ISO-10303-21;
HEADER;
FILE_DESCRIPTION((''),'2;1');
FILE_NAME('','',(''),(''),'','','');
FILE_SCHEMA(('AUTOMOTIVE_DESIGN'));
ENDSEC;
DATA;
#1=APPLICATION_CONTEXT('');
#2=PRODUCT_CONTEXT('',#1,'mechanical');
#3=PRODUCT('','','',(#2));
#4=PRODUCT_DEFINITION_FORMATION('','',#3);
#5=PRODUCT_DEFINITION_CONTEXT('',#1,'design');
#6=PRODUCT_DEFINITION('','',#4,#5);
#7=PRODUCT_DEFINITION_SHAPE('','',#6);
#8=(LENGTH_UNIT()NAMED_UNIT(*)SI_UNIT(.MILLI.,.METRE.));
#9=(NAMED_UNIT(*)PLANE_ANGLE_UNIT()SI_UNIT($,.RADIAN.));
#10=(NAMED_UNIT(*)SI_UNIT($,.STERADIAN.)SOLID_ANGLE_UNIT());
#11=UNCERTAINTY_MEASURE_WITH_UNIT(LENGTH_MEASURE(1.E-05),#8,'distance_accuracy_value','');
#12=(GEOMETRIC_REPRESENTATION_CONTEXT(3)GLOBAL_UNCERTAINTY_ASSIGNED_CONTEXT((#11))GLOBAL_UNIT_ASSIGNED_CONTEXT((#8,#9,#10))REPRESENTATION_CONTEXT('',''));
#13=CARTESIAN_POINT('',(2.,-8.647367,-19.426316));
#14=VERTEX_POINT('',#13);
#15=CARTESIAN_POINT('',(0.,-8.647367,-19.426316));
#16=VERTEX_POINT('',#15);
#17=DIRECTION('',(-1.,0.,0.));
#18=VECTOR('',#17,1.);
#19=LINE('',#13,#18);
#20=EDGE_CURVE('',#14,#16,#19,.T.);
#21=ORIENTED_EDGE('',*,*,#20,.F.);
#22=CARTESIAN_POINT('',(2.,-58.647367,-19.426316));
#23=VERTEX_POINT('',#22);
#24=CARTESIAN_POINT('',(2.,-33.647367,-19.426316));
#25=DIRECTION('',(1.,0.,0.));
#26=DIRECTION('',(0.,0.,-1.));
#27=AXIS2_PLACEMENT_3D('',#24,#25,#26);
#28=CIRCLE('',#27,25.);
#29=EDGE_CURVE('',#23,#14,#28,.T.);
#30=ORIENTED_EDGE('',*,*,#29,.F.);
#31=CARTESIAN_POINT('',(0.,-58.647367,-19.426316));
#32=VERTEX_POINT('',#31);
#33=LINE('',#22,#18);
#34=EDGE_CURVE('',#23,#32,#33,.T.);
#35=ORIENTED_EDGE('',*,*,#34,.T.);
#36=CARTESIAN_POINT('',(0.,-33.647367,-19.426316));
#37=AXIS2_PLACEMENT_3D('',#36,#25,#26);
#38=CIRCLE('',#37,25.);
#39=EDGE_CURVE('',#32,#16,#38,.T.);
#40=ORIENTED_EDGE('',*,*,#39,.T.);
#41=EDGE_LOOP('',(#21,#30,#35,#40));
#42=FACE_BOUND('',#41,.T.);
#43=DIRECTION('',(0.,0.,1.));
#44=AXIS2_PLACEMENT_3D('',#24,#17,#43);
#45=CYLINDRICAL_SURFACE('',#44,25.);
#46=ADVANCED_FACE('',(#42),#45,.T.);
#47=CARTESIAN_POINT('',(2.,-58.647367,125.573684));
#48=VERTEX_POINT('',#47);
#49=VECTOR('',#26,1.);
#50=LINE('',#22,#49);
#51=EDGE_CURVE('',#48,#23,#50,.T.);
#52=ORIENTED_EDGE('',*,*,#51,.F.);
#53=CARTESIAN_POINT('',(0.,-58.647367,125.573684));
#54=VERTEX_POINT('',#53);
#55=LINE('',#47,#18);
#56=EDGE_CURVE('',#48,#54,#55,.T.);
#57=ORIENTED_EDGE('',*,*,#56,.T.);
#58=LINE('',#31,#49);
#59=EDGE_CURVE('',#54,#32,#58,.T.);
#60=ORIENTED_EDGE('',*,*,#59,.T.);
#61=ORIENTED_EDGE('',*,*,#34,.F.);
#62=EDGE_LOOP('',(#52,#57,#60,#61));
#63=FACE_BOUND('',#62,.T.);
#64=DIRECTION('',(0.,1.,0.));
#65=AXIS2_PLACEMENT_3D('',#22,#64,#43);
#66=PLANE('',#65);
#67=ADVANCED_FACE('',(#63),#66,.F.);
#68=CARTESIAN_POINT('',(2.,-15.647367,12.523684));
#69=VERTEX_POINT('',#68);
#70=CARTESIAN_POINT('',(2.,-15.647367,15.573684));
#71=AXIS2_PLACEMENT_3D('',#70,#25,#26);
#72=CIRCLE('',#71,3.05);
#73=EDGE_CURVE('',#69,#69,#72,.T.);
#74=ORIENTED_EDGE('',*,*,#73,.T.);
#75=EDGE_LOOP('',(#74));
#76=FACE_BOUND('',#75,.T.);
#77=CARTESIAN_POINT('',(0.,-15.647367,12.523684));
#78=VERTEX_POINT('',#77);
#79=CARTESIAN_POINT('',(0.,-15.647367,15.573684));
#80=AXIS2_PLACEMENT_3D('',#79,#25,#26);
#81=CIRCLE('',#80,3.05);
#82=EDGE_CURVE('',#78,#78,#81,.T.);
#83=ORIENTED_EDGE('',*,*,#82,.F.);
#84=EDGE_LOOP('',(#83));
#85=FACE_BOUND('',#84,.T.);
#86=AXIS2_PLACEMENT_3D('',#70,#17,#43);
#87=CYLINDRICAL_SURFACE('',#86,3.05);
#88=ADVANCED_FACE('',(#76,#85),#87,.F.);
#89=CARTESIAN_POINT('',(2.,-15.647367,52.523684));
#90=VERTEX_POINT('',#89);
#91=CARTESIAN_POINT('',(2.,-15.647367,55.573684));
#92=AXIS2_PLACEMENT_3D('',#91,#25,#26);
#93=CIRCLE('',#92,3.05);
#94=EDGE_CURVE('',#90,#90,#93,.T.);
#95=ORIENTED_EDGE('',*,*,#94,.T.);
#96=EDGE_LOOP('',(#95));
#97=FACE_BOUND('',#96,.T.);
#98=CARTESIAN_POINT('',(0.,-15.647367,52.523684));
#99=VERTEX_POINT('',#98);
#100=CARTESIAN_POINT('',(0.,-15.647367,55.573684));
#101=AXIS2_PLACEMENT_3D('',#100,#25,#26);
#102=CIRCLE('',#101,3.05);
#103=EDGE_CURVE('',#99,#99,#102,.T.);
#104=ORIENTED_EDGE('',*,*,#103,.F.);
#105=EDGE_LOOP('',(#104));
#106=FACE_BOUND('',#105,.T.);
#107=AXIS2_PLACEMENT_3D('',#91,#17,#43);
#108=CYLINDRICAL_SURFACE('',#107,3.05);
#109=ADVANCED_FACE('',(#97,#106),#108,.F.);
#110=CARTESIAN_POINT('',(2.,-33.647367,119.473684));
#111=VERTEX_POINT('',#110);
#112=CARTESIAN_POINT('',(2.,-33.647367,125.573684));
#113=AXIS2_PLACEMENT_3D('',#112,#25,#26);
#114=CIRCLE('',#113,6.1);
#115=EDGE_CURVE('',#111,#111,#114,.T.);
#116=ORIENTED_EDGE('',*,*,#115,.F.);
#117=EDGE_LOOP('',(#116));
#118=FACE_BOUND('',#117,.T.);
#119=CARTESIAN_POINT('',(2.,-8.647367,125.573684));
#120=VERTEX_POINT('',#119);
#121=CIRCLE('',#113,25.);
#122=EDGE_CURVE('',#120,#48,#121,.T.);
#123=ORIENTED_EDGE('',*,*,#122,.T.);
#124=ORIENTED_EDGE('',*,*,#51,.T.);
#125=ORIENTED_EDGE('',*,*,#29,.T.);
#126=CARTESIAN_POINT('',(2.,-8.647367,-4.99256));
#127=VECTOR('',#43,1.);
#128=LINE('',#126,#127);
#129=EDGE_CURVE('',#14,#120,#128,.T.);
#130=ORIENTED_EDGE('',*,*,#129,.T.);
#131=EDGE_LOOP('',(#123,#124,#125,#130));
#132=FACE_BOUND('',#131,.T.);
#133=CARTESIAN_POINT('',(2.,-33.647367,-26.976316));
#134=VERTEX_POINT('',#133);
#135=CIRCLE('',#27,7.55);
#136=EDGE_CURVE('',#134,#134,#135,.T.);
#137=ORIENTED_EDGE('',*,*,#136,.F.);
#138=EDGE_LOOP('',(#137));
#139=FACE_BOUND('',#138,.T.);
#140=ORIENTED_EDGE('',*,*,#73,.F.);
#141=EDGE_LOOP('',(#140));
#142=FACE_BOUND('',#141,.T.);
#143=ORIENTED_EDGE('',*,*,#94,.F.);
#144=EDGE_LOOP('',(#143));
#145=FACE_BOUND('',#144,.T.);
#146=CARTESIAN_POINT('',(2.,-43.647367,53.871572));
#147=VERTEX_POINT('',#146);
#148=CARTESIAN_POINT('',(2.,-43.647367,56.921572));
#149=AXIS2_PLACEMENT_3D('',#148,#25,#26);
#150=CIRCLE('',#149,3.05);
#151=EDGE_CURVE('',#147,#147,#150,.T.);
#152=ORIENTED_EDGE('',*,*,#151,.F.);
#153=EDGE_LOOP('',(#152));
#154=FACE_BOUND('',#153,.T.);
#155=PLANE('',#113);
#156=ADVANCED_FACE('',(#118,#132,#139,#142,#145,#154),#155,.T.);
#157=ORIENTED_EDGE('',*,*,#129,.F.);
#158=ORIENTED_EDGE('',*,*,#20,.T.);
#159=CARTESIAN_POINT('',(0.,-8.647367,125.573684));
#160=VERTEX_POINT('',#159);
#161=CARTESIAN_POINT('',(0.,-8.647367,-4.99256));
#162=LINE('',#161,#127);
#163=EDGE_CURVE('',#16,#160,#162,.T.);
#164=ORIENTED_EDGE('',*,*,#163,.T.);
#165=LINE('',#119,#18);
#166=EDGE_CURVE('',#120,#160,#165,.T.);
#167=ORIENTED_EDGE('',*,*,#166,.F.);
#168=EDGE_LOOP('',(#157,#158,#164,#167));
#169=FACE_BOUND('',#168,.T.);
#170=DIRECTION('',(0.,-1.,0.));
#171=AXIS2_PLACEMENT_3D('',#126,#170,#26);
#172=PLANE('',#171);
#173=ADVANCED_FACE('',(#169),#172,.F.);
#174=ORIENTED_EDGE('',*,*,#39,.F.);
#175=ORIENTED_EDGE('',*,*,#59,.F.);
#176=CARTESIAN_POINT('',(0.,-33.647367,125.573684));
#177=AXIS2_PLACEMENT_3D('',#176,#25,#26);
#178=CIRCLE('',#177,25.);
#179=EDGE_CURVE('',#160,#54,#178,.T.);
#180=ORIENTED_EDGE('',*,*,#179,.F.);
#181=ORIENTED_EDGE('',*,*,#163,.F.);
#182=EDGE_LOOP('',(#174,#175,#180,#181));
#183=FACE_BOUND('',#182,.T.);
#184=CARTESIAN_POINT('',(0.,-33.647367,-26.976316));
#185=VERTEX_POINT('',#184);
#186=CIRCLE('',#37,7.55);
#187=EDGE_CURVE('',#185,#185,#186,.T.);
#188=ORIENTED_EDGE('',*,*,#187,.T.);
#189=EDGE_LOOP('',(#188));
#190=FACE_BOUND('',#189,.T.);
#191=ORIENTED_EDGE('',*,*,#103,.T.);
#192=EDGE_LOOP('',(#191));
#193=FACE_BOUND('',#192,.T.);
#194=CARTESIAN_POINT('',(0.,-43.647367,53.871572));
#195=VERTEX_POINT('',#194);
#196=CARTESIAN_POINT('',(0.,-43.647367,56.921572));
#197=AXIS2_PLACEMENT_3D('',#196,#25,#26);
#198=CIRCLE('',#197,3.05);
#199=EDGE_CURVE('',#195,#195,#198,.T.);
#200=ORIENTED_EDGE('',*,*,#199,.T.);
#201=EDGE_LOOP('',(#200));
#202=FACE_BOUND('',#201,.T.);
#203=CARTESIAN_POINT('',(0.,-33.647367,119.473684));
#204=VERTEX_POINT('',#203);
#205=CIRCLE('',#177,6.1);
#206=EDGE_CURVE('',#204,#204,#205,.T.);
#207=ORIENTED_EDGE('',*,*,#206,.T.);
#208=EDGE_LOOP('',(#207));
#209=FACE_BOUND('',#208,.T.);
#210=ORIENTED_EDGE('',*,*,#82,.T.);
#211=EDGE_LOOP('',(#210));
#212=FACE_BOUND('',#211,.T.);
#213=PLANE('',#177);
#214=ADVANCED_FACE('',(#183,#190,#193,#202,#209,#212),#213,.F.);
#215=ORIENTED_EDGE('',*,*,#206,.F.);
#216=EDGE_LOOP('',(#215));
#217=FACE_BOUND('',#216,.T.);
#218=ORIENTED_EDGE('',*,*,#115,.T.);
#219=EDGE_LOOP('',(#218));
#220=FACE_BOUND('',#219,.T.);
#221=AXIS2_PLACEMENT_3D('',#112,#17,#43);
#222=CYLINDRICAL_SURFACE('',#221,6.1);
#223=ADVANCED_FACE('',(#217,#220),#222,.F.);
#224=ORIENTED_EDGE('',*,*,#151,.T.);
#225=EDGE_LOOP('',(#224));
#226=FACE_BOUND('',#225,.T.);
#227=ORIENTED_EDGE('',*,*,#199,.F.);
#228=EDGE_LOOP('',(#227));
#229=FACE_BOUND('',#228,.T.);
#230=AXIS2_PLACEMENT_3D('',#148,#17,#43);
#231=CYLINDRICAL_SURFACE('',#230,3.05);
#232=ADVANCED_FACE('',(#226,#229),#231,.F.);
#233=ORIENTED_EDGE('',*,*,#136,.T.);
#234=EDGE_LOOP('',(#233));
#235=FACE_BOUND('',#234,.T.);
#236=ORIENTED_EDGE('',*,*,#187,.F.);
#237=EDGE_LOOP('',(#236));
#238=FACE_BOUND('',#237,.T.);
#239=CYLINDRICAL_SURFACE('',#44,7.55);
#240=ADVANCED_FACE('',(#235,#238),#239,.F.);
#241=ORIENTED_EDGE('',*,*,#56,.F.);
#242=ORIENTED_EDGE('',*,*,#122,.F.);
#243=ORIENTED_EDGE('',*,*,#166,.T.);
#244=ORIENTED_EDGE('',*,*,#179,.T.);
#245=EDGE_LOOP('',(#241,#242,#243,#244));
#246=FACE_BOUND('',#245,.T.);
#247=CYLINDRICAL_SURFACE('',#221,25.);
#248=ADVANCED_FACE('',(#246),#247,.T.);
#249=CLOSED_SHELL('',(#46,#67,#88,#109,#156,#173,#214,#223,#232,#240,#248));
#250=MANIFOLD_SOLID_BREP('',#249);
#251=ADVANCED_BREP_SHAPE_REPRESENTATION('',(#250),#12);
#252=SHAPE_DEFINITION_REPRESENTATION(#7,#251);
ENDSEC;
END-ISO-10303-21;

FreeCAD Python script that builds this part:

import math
import FreeCAD as App
import Part
import Sketcher

doc = App.newDocument("Part")
body = doc.addObject("PartDesign::Body", "Body")

# Sketch on YZ plane
sketch1 = doc.addObject("Sketcher::SketchObject", "Sketch")
body.addObject(sketch1)
sketch1.AttachmentSupport = (doc.YZ_Plane, [""])
sketch1.MapMode = "FlatFace"
sketch1.addGeometry(Part.LineSegment(App.Vector(-58.6, 125.6, 0), App.Vector(-58.6, -19.4, 0)), False)
sketch1.addGeometry(Part.ArcOfCircle(Part.Circle(App.Vector(-33.6, -19.4, 0), App.Vector(0, 0, 1), 25), math.radians(180), math.radians(360)), False)
sketch1.addGeometry(Part.LineSegment(App.Vector(-8.6, -19.4, 0), App.Vector(-8.6, 125.6, 0)), False)
sketch1.addGeometry(Part.ArcOfCircle(Part.Circle(App.Vector(-33.6, 125.6, 0), App.Vector(0, 0, 1), 25), math.radians(0), math.radians(180)), False)
sketch1.addGeometry(Part.Circle(App.Vector(-33.6, -19.4, 0), App.Vector(0, 0, 1), 7.5), False)
sketch1.addGeometry(Part.Circle(App.Vector(-43.6, 56.9, 0), App.Vector(0, 0, 1), 3), False)
sketch1.addGeometry(Part.Circle(App.Vector(-33.6, 125.6, 0), App.Vector(0, 0, 1), 6.1), False)
sketch1.addGeometry(Part.Circle(App.Vector(-15.6, 15.6, 0), App.Vector(0, 0, 1), 3), False)
sketch1.addGeometry(Part.Circle(App.Vector(-15.6, 55.6, 0), App.Vector(0, 0, 1), 3), False)
sketch1.addConstraint(Sketcher.Constraint("Tangent", 0, 2, 1, 1))
sketch1.addConstraint(Sketcher.Constraint("Tangent", 1, 2, 2, 1))
sketch1.addConstraint(Sketcher.Constraint("Tangent", 2, 2, 3, 1))
sketch1.addConstraint(Sketcher.Constraint("Tangent", 3, 2, 0, 1))
sketch1.addConstraint(Sketcher.Constraint("Vertical", 0))
sketch1.addConstraint(Sketcher.Constraint("Vertical", 2))
sketch1.addConstraint(Sketcher.Constraint("Coincident", 4, 3, 1, 3))
sketch1.addConstraint(Sketcher.Constraint("Coincident", 6, 3, 3, 3))
sketch1.addConstraint(Sketcher.Constraint("Equal", 5, 7))
sketch1.addConstraint(Sketcher.Constraint("Equal", 7, 8))
sketch1.addConstraint(Sketcher.Constraint("Vertical", 7, 3, 8, 3))
sketch1.addConstraint(Sketcher.Constraint("Radius", 1, 25.0))
sketch1.addConstraint(Sketcher.Constraint("Diameter", 4, 15.1))
sketch1.addConstraint(Sketcher.Constraint("Diameter", 5, 6.1))
sketch1.addConstraint(Sketcher.Constraint("Diameter", 6, 12.2))
sketch1.addConstraint(Sketcher.Constraint("DistanceY", 0, 2, 0, 1, 145.0))
sketch1.addConstraint(Sketcher.Constraint("DistanceX", 5, 3, 3, 3, 10.0))
sketch1.addConstraint(Sketcher.Constraint("DistanceX", 1, 3, 7, 3, 18.0))
sketch1.addConstraint(Sketcher.Constraint("DistanceY", 1, 3, 7, 3, 35.0))
sketch1.addConstraint(Sketcher.Constraint("DistanceY", 7, 3, 8, 3, 40.0))
sketch1.addConstraint(Sketcher.Constraint("DistanceY", -1, 1, 5, 3, 56.921572))
sketch1.addConstraint(Sketcher.Constraint("DistanceX", 1, 3, -1, 1, 33.647367))
sketch1.addConstraint(Sketcher.Constraint("DistanceY", 1, 3, -1, 1, 19.426316))
pad1 = doc.addObject("PartDesign::Pad", "Pad")
body.addObject(pad1)
pad1.Profile = sketch1
pad1.Length = 2

doc.recompute()
